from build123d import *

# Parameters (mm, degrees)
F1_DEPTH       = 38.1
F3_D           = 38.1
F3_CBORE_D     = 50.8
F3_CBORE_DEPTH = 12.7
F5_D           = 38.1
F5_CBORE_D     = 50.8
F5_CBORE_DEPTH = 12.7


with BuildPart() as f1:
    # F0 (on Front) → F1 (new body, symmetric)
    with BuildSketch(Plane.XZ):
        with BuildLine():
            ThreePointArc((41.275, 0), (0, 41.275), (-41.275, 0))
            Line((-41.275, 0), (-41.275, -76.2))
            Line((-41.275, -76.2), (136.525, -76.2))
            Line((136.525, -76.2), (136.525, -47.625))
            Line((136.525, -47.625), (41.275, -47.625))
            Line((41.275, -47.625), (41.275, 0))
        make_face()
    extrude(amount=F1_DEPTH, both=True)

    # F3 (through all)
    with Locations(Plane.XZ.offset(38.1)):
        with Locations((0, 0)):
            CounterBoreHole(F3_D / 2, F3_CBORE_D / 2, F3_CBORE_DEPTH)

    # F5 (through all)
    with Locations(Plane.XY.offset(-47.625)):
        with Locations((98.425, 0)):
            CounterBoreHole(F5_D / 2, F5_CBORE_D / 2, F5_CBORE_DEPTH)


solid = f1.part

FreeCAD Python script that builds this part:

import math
import FreeCAD as App
import Part
import Sketcher

V = App.Vector
Q = App.Units.Quantity

doc = App.newDocument("Part")
body = doc.addObject("PartDesign::Body", "Body")

# Sketch on XZ plane
sketch1 = doc.addObject("Sketcher::SketchObject", "Sketch")
body.addObject(sketch1)
sketch1.AttachmentSupport = (doc.XZ_Plane, [""])
sketch1.MapMode = "FlatFace"
sketch1.addGeometry([
    Part.ArcOfCircle(Part.Circle(V(0, 0, 0), V(0, 0, 1), 41), math.radians(0), math.radians(180)),  # 0
    Part.LineSegment(V(-41, 0, 0), V(-41, -76, 0)),  # 1
    Part.LineSegment(V(-41, -76, 0), V(137, -76, 0)),  # 2
    Part.LineSegment(V(137, -76, 0), V(137, -48, 0)),  # 3
    Part.LineSegment(V(137, -48, 0), V(41, -48, 0)),  # 4
    Part.LineSegment(V(41, -48, 0), V(41, 0, 0)),  # 5
], False)
sketch1.addConstraint([
    Sketcher.Constraint("Tangent", 0, 2, 1, 1),
    Sketcher.Constraint("Coincident", 1, 2, 2, 1),
    Sketcher.Constraint("Coincident", 2, 2, 3, 1),
    Sketcher.Constraint("Coincident", 3, 2, 4, 1),
    Sketcher.Constraint("Coincident", 4, 2, 5, 1),
    Sketcher.Constraint("Tangent", 5, 2, 0, 1),
    Sketcher.Constraint("Vertical", 1),
    Sketcher.Constraint("Horizontal", 2),
    Sketcher.Constraint("Vertical", 3),
    Sketcher.Constraint("Horizontal", 4),
    Sketcher.Constraint("Vertical", 5),
    Sketcher.Constraint("Coincident", 0, 3, -1, 1),
    Sketcher.Constraint("DistanceX", 2, 1, 2, 2, Q("7 in")),
    Sketcher.Constraint("DistanceY", 1, 2, 1, 1, Q("3 in")),
    Sketcher.Constraint("Radius", 0, Q("1.625 in")),
    Sketcher.Constraint("DistanceY", 3, 1, 3, 2, Q("1.125 in")),
])
pad1 = doc.addObject("PartDesign::Pad", "Pad")
body.addObject(pad1)
pad1.Profile = sketch1
pad1.Length = Q("3 in")
pad1.Midplane = True

# Sketch on XZ plane
sketch2 = doc.addObject("Sketcher::SketchObject", "Sketch001")
body.addObject(sketch2)
sketch2.AttachmentSupport = (doc.XZ_Plane, [""])
sketch2.MapMode = "FlatFace"
sketch2.AttachmentOffset = App.Placement(V(0, 0, 1.5 * 25.4), App.Rotation())
sketch2.addGeometry(Part.Circle(V(0, 0, 0), V(0, 0, 1), 19), False)
sketch2.addConstraint([
    Sketcher.Constraint("Coincident", 0, 3, -1, 1),
    Sketcher.Constraint("Diameter", 0, Q("1.5 in")),
])
doc.recompute()
hole = doc.addObject("PartDesign::Hole", "Hole")
body.addObject(hole)
hole.Profile = sketch2
hole.ThreadType = "None"
hole.Diameter = Q("1.5 in")
hole.DepthType = "ThroughAll"
hole.HoleCutType = "Counterbore"
hole.HoleCutDiameter = Q("2 in")
hole.HoleCutDepth = Q("0.5 in")

# Sketch on XY plane
sketch3 = doc.addObject("Sketcher::SketchObject", "Sketch002")
body.addObject(sketch3)
sketch3.AttachmentSupport = (doc.XY_Plane, [""])
sketch3.MapMode = "FlatFace"
sketch3.AttachmentOffset = App.Placement(V(0, 0, -1.875 * 25.4), App.Rotation())
sketch3.addGeometry(Part.Circle(V(98, 0, 0), V(0, 0, 1), 19), False)
sketch3.addConstraint([
    Sketcher.Constraint("PointOnObject", 0, 3, -1),
    Sketcher.Constraint("Diameter", 0, Q("1.5 in")),
    Sketcher.Constraint("DistanceX", -1, 1, 0, 3, Q("3.875 in")),
])
doc.recompute()
hole2 = doc.addObject("PartDesign::Hole", "Hole001")
body.addObject(hole2)
hole2.Profile = sketch3
hole2.ThreadType = "None"
hole2.Diameter = Q("1.5 in")
hole2.DepthType = "ThroughAll"
hole2.HoleCutType = "Counterbore"
hole2.HoleCutDiameter = Q("2 in")
hole2.HoleCutDepth = Q("0.5 in")

doc.recompute()
